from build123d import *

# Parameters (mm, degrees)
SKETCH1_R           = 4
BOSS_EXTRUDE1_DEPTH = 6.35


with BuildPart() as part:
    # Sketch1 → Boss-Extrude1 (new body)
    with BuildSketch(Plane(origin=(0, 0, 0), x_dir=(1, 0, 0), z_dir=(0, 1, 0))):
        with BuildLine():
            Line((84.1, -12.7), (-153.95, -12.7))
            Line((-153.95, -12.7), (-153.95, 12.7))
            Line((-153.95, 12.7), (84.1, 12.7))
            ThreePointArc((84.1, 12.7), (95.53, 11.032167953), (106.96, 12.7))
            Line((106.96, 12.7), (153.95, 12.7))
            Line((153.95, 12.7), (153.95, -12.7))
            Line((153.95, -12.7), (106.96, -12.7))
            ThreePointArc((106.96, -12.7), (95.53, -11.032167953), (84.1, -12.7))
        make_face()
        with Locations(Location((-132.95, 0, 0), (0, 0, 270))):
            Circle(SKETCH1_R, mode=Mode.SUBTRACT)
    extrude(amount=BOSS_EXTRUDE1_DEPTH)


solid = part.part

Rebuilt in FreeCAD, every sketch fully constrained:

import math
import FreeCAD as App
import Part
import Sketcher

V = App.Vector
Q = App.Units.Quantity

doc = App.newDocument("Part")
body = doc.addObject("PartDesign::Body", "Body")

# Sketch on XZ plane
sketch1 = body.newObject("Sketcher::SketchObject", "Sketch")
sketch1.AttachmentSupport = (doc.getObject("XZ_Plane"), [""])
sketch1.MapMode = "FlatFace"
sketch1.addGeometry([
    Part.LineSegment(V(-153.9, 12.7, 0), V(84.1, 12.7, 0)),  # 0
    Part.ArcOfCircle(Part.Circle(V(95.5, 51, 0), V(0, 0, 1), 40), math.radians(-107), math.radians(-73)),  # 1
    Part.LineSegment(V(107, 12.7, 0), V(153.9, 12.7, 0)),  # 2
    Part.LineSegment(V(153.9, 12.7, 0), V(153.9, -12.7, 0)),  # 3
    Part.LineSegment(V(153.9, -12.7, 0), V(107, -12.7, 0)),  # 4
    Part.ArcOfCircle(Part.Circle(V(95.5, -51, 0), V(0, 0, 1), 40), math.radians(73), math.radians(107)),  # 5
    Part.LineSegment(V(84.1, -12.7, 0), V(-153.9, -12.7, 0)),  # 6
    Part.LineSegment(V(-153.9, -12.7, 0), V(-153.9, 12.7, 0)),  # 7
    Part.Circle(V(-132.9, 0, 0), V(0, 0, 1), 4),  # 8
], False)
sketch1.addConstraint([
    Sketcher.Constraint("Coincident", 0, 2, 1, 1),
    Sketcher.Constraint("Coincident", 1, 2, 2, 1),
    Sketcher.Constraint("Coincident", 2, 2, 3, 1),
    Sketcher.Constraint("Coincident", 3, 2, 4, 1),
    Sketcher.Constraint("Coincident", 4, 2, 5, 1),
    Sketcher.Constraint("Coincident", 5, 2, 6, 1),
    Sketcher.Constraint("Coincident", 6, 2, 7, 1),
    Sketcher.Constraint("Coincident", 7, 2, 0, 1),
    Sketcher.Constraint("Horizontal", 0),
    Sketcher.Constraint("Horizontal", 2),
    Sketcher.Constraint("Vertical", 3),
    Sketcher.Constraint("Horizontal", 4),
    Sketcher.Constraint("Horizontal", 6),
    Sketcher.Constraint("Vertical", 7),
    Sketcher.Constraint("Equal", 1, 5),
    Sketcher.Constraint("Symmetric", 2, 2, 6, 2, -1, 1),
    Sketcher.Constraint("Symmetric", 1, 3, 5, 3, -1),
    Sketcher.Constraint("PointOnObject", 8, 3, -1),
    Sketcher.Constraint("Horizontal", 0, 2, 1, 2),
    Sketcher.Constraint("Horizontal", 4, 2, 5, 2),
    Sketcher.Constraint("DistanceY", 3, 2, 3, 1, Q("1 in")),
    Sketcher.Constraint("DistanceX", 2, 1, 2, 2, Q("1.85 in")),
    Sketcher.Constraint("DistanceX", 0, 2, 1, 2, Q("0.9 in")),
    Sketcher.Constraint("Diameter", 8, Q("8 mm")),
    Sketcher.Constraint("Radius", 1, Q("40 mm")),
    Sketcher.Constraint("DistanceX", 0, 1, 0, 2, Q("238.05 mm")),
    Sketcher.Constraint("DistanceX", 8, 3, -1, 1, Q("132.95 mm")),
])
pad1 = body.newObject("PartDesign::Pad", "Pad")
pad1.Profile = sketch1
pad1.Length = Q("0.25 in")
pad1.Reversed = True

doc.recompute()
